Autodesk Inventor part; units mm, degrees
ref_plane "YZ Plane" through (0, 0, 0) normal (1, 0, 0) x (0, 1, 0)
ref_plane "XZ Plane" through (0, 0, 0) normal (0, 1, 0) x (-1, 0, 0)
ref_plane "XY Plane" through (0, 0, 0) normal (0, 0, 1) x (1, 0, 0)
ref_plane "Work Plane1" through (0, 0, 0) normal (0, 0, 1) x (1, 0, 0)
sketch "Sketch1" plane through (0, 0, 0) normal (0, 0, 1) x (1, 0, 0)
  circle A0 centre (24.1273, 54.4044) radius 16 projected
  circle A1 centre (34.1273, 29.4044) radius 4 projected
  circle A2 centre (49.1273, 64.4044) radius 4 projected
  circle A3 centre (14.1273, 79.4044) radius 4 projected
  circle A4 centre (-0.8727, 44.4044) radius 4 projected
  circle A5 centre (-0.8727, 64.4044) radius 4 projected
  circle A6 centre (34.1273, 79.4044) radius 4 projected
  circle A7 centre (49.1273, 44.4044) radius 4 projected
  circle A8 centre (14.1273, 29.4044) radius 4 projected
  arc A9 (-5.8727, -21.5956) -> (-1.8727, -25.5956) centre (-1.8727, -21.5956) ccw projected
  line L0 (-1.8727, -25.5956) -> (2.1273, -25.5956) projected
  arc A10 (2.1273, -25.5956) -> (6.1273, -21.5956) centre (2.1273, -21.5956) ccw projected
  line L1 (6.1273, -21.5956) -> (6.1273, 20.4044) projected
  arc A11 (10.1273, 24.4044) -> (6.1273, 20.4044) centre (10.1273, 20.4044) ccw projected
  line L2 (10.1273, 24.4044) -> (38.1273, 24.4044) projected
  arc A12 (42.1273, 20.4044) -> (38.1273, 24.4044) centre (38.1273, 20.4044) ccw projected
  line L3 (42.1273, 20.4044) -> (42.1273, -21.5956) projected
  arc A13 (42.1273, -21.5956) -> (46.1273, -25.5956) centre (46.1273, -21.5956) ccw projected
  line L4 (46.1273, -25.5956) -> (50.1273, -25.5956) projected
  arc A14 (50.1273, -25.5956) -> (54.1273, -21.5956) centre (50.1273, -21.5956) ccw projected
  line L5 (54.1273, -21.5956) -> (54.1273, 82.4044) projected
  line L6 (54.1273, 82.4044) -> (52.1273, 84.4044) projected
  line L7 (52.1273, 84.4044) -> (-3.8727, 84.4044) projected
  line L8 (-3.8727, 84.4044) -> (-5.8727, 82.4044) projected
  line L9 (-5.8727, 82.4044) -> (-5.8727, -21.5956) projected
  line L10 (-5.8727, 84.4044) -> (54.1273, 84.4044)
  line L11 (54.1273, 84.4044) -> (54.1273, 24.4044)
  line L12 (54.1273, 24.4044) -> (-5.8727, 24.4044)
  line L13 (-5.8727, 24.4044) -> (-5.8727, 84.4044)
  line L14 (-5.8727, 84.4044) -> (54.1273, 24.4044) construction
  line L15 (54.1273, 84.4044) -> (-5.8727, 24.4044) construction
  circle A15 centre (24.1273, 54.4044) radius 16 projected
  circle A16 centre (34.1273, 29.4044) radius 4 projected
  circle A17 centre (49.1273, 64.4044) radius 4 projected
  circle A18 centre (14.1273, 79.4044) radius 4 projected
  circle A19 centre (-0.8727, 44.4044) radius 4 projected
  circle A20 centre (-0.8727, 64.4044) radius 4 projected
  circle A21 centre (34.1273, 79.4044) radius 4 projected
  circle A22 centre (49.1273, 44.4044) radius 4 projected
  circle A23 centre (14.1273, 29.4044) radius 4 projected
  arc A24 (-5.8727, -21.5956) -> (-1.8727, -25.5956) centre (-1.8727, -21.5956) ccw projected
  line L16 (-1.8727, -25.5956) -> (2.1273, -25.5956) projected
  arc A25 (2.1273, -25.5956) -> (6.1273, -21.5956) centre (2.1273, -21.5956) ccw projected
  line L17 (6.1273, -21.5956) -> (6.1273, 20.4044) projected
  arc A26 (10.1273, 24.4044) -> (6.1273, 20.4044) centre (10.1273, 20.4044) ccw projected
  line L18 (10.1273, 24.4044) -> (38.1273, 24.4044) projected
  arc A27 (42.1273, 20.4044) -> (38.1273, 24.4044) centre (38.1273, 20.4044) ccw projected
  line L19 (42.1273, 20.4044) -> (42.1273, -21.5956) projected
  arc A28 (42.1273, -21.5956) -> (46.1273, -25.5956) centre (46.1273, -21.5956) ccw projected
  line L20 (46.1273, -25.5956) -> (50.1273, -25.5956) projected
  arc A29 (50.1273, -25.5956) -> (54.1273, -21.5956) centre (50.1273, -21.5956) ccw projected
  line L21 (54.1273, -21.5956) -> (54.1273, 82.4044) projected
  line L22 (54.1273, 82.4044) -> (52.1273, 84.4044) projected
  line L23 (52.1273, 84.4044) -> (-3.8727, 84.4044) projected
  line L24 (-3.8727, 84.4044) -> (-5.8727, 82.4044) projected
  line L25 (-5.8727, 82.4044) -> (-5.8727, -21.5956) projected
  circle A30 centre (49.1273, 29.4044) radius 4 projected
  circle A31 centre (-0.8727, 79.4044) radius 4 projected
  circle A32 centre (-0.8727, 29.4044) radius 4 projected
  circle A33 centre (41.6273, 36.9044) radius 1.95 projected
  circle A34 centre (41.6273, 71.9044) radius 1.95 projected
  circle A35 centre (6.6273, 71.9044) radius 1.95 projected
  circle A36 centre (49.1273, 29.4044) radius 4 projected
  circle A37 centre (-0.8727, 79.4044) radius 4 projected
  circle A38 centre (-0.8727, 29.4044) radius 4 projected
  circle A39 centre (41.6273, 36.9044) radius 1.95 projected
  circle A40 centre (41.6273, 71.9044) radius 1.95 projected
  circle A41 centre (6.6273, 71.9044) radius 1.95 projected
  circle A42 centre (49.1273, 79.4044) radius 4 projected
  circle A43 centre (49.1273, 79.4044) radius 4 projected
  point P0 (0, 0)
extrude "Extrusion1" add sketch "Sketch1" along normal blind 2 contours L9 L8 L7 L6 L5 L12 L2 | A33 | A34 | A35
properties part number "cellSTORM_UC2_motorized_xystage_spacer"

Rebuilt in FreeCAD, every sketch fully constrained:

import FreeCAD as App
import Part
import Sketcher
Q = App.Units.Quantity

doc = App.newDocument("Part")
body = doc.addObject("PartDesign::Body", "Body")

sketch1 = body.newObject("Sketcher::SketchObject", "Sketch")
sketch1.AttachmentSupport = (doc.getObject("XY_Plane"), [""])
sketch1.MapMode = "FlatFace"
sketch1.addGeometry([
    Part.LineSegment(App.Vector(-5.9, 82.4, 0), App.Vector(-5.9, 24.4, 0)),
    Part.LineSegment(App.Vector(-5.9, 24.4, 0), App.Vector(54.1, 24.4, 0)),
    Part.LineSegment(App.Vector(54.1, 24.4, 0), App.Vector(54.1, 82.4, 0)),
    Part.LineSegment(App.Vector(54.1, 82.4, 0), App.Vector(52.1, 84.4, 0)),
    Part.LineSegment(App.Vector(52.1, 84.4, 0), App.Vector(-3.9, 84.4, 0)),
    Part.LineSegment(App.Vector(-3.9, 84.4, 0), App.Vector(-5.9, 82.4, 0)),
    Part.Circle(App.Vector(-0.9, 29.4, 0), App.Vector(0, 0, 1), 4),
    Part.Circle(App.Vector(-0.9, 44.4, 0), App.Vector(0, 0, 1), 4),
    Part.Circle(App.Vector(14.1, 29.4, 0), App.Vector(0, 0, 1), 4),
    Part.Circle(App.Vector(-0.9, 64.4, 0), App.Vector(0, 0, 1), 4),
    Part.Circle(App.Vector(-0.9, 79.4, 0), App.Vector(0, 0, 1), 4),
    Part.Circle(App.Vector(14.1, 79.4, 0), App.Vector(0, 0, 1), 4),
    Part.Circle(App.Vector(34.1, 29.4, 0), App.Vector(0, 0, 1), 4),
    Part.Circle(App.Vector(24.1, 54.4, 0), App.Vector(0, 0, 1), 16),
    Part.Circle(App.Vector(49.1, 29.4, 0), App.Vector(0, 0, 1), 4),
    Part.Circle(App.Vector(49.1, 44.4, 0), App.Vector(0, 0, 1), 4),
    Part.Circle(App.Vector(34.1, 79.4, 0), App.Vector(0, 0, 1), 4),
    Part.Circle(App.Vector(49.1, 64.4, 0), App.Vector(0, 0, 1), 4),
    Part.Circle(App.Vector(49.1, 79.4, 0), App.Vector(0, 0, 1), 4),
], False)
sketch1.addConstraint([
    Sketcher.Constraint("Coincident", 0, 2, 1, 1),
    Sketcher.Constraint("Coincident", 1, 2, 2, 1),
    Sketcher.Constraint("Coincident", 2, 2, 3, 1),
    Sketcher.Constraint("Coincident", 3, 2, 4, 1),
    Sketcher.Constraint("Coincident", 4, 2, 5, 1),
    Sketcher.Constraint("Coincident", 5, 2, 0, 1),
    Sketcher.Constraint("Vertical", 0),
    Sketcher.Constraint("Horizontal", 1),
    Sketcher.Constraint("Vertical", 2),
    Sketcher.Constraint("Horizontal", 4),
    Sketcher.Constraint("Equal", 6, 7),
    Sketcher.Constraint("Equal", 7, 8),
    Sketcher.Constraint("Equal", 8, 9),
    Sketcher.Constraint("Equal", 9, 10),
    Sketcher.Constraint("Equal", 10, 11),
    Sketcher.Constraint("Equal", 11, 12),
    Sketcher.Constraint("Equal", 12, 14),
    Sketcher.Constraint("Equal", 14, 15),
    Sketcher.Constraint("Equal", 15, 16),
    Sketcher.Constraint("Equal", 16, 17),
    Sketcher.Constraint("Equal", 17, 18),
    Sketcher.Constraint("Perpendicular", 3, 5),
    Sketcher.Constraint("Horizontal", 6, 3, 8, 3),
    Sketcher.Constraint("Horizontal", 10, 3, 11, 3),
    Sketcher.Constraint("Horizontal", 8, 3, 12, 3),
    Sketcher.Constraint("Horizontal", 12, 3, 14, 3),
    Sketcher.Constraint("Horizontal", 7, 3, 15, 3),
    Sketcher.Constraint("Horizontal", 11, 3, 16, 3),
    Sketcher.Constraint("Horizontal", 9, 3, 17, 3),
    Sketcher.Constraint("Horizontal", 16, 3, 18, 3),
    Sketcher.Constraint("Horizontal", 2, 2, 5, 2),
    Sketcher.Constraint("Vertical", 6, 3, 7, 3),
    Sketcher.Constraint("Vertical", 7, 3, 9, 3),
    Sketcher.Constraint("Vertical", 9, 3, 10, 3),
    Sketcher.Constraint("Vertical", 8, 3, 11, 3),
    Sketcher.Constraint("Vertical", 14, 3, 15, 3),
    Sketcher.Constraint("Vertical", 12, 3, 16, 3),
    Sketcher.Constraint("Vertical", 15, 3, 17, 3),
    Sketcher.Constraint("Vertical", 17, 3, 18, 3),
    Sketcher.Constraint("Equal", 3, 5),
    Sketcher.Constraint("Diameter", 6, Q("8 mm")),
    Sketcher.Constraint("Diameter", 13, Q("32 mm")),
    Sketcher.Constraint("DistanceX", 1, 1, 1, 2, Q("60 mm")),
    Sketcher.Constraint("DistanceX", 4, 2, 4, 1, Q("56 mm")),
    Sketcher.Constraint("DistanceY", 0, 2, 0, 1, Q("58 mm")),
    Sketcher.Constraint("DistanceY", 6, 3, 7, 3, Q("15 mm")),
    Sketcher.Constraint("DistanceX", 6, 3, 8, 3, Q("15 mm")),
    Sketcher.Constraint("DistanceY", 7, 3, 9, 3, Q("20 mm")),
    Sketcher.Constraint("DistanceY", 9, 3, 10, 3, Q("15 mm")),
    Sketcher.Constraint("DistanceX", 8, 3, 12, 3, Q("20 mm")),
    Sketcher.Constraint("DistanceX", 9, 3, 13, 3, Q("25 mm")),
    Sketcher.Constraint("DistanceY", 13, 3, 9, 3, Q("10 mm")),
    Sketcher.Constraint("DistanceX", 12, 3, 14, 3, Q("15 mm")),
    Sketcher.Constraint("DistanceX", 0, 2, 6, 3, Q("5 mm")),
    Sketcher.Constraint("DistanceY", 0, 2, 6, 3, Q("5 mm")),
    Sketcher.Constraint("DistanceX", 6, 3, -1, 1, Q("0.8727 mm")),
    Sketcher.Constraint("DistanceY", -1, 1, 6, 3, Q("29.4044 mm")),
])
pad1 = body.newObject("PartDesign::Pad", "Pad")
pad1.Profile = sketch1
pad1.Length = 2

doc.recompute()
